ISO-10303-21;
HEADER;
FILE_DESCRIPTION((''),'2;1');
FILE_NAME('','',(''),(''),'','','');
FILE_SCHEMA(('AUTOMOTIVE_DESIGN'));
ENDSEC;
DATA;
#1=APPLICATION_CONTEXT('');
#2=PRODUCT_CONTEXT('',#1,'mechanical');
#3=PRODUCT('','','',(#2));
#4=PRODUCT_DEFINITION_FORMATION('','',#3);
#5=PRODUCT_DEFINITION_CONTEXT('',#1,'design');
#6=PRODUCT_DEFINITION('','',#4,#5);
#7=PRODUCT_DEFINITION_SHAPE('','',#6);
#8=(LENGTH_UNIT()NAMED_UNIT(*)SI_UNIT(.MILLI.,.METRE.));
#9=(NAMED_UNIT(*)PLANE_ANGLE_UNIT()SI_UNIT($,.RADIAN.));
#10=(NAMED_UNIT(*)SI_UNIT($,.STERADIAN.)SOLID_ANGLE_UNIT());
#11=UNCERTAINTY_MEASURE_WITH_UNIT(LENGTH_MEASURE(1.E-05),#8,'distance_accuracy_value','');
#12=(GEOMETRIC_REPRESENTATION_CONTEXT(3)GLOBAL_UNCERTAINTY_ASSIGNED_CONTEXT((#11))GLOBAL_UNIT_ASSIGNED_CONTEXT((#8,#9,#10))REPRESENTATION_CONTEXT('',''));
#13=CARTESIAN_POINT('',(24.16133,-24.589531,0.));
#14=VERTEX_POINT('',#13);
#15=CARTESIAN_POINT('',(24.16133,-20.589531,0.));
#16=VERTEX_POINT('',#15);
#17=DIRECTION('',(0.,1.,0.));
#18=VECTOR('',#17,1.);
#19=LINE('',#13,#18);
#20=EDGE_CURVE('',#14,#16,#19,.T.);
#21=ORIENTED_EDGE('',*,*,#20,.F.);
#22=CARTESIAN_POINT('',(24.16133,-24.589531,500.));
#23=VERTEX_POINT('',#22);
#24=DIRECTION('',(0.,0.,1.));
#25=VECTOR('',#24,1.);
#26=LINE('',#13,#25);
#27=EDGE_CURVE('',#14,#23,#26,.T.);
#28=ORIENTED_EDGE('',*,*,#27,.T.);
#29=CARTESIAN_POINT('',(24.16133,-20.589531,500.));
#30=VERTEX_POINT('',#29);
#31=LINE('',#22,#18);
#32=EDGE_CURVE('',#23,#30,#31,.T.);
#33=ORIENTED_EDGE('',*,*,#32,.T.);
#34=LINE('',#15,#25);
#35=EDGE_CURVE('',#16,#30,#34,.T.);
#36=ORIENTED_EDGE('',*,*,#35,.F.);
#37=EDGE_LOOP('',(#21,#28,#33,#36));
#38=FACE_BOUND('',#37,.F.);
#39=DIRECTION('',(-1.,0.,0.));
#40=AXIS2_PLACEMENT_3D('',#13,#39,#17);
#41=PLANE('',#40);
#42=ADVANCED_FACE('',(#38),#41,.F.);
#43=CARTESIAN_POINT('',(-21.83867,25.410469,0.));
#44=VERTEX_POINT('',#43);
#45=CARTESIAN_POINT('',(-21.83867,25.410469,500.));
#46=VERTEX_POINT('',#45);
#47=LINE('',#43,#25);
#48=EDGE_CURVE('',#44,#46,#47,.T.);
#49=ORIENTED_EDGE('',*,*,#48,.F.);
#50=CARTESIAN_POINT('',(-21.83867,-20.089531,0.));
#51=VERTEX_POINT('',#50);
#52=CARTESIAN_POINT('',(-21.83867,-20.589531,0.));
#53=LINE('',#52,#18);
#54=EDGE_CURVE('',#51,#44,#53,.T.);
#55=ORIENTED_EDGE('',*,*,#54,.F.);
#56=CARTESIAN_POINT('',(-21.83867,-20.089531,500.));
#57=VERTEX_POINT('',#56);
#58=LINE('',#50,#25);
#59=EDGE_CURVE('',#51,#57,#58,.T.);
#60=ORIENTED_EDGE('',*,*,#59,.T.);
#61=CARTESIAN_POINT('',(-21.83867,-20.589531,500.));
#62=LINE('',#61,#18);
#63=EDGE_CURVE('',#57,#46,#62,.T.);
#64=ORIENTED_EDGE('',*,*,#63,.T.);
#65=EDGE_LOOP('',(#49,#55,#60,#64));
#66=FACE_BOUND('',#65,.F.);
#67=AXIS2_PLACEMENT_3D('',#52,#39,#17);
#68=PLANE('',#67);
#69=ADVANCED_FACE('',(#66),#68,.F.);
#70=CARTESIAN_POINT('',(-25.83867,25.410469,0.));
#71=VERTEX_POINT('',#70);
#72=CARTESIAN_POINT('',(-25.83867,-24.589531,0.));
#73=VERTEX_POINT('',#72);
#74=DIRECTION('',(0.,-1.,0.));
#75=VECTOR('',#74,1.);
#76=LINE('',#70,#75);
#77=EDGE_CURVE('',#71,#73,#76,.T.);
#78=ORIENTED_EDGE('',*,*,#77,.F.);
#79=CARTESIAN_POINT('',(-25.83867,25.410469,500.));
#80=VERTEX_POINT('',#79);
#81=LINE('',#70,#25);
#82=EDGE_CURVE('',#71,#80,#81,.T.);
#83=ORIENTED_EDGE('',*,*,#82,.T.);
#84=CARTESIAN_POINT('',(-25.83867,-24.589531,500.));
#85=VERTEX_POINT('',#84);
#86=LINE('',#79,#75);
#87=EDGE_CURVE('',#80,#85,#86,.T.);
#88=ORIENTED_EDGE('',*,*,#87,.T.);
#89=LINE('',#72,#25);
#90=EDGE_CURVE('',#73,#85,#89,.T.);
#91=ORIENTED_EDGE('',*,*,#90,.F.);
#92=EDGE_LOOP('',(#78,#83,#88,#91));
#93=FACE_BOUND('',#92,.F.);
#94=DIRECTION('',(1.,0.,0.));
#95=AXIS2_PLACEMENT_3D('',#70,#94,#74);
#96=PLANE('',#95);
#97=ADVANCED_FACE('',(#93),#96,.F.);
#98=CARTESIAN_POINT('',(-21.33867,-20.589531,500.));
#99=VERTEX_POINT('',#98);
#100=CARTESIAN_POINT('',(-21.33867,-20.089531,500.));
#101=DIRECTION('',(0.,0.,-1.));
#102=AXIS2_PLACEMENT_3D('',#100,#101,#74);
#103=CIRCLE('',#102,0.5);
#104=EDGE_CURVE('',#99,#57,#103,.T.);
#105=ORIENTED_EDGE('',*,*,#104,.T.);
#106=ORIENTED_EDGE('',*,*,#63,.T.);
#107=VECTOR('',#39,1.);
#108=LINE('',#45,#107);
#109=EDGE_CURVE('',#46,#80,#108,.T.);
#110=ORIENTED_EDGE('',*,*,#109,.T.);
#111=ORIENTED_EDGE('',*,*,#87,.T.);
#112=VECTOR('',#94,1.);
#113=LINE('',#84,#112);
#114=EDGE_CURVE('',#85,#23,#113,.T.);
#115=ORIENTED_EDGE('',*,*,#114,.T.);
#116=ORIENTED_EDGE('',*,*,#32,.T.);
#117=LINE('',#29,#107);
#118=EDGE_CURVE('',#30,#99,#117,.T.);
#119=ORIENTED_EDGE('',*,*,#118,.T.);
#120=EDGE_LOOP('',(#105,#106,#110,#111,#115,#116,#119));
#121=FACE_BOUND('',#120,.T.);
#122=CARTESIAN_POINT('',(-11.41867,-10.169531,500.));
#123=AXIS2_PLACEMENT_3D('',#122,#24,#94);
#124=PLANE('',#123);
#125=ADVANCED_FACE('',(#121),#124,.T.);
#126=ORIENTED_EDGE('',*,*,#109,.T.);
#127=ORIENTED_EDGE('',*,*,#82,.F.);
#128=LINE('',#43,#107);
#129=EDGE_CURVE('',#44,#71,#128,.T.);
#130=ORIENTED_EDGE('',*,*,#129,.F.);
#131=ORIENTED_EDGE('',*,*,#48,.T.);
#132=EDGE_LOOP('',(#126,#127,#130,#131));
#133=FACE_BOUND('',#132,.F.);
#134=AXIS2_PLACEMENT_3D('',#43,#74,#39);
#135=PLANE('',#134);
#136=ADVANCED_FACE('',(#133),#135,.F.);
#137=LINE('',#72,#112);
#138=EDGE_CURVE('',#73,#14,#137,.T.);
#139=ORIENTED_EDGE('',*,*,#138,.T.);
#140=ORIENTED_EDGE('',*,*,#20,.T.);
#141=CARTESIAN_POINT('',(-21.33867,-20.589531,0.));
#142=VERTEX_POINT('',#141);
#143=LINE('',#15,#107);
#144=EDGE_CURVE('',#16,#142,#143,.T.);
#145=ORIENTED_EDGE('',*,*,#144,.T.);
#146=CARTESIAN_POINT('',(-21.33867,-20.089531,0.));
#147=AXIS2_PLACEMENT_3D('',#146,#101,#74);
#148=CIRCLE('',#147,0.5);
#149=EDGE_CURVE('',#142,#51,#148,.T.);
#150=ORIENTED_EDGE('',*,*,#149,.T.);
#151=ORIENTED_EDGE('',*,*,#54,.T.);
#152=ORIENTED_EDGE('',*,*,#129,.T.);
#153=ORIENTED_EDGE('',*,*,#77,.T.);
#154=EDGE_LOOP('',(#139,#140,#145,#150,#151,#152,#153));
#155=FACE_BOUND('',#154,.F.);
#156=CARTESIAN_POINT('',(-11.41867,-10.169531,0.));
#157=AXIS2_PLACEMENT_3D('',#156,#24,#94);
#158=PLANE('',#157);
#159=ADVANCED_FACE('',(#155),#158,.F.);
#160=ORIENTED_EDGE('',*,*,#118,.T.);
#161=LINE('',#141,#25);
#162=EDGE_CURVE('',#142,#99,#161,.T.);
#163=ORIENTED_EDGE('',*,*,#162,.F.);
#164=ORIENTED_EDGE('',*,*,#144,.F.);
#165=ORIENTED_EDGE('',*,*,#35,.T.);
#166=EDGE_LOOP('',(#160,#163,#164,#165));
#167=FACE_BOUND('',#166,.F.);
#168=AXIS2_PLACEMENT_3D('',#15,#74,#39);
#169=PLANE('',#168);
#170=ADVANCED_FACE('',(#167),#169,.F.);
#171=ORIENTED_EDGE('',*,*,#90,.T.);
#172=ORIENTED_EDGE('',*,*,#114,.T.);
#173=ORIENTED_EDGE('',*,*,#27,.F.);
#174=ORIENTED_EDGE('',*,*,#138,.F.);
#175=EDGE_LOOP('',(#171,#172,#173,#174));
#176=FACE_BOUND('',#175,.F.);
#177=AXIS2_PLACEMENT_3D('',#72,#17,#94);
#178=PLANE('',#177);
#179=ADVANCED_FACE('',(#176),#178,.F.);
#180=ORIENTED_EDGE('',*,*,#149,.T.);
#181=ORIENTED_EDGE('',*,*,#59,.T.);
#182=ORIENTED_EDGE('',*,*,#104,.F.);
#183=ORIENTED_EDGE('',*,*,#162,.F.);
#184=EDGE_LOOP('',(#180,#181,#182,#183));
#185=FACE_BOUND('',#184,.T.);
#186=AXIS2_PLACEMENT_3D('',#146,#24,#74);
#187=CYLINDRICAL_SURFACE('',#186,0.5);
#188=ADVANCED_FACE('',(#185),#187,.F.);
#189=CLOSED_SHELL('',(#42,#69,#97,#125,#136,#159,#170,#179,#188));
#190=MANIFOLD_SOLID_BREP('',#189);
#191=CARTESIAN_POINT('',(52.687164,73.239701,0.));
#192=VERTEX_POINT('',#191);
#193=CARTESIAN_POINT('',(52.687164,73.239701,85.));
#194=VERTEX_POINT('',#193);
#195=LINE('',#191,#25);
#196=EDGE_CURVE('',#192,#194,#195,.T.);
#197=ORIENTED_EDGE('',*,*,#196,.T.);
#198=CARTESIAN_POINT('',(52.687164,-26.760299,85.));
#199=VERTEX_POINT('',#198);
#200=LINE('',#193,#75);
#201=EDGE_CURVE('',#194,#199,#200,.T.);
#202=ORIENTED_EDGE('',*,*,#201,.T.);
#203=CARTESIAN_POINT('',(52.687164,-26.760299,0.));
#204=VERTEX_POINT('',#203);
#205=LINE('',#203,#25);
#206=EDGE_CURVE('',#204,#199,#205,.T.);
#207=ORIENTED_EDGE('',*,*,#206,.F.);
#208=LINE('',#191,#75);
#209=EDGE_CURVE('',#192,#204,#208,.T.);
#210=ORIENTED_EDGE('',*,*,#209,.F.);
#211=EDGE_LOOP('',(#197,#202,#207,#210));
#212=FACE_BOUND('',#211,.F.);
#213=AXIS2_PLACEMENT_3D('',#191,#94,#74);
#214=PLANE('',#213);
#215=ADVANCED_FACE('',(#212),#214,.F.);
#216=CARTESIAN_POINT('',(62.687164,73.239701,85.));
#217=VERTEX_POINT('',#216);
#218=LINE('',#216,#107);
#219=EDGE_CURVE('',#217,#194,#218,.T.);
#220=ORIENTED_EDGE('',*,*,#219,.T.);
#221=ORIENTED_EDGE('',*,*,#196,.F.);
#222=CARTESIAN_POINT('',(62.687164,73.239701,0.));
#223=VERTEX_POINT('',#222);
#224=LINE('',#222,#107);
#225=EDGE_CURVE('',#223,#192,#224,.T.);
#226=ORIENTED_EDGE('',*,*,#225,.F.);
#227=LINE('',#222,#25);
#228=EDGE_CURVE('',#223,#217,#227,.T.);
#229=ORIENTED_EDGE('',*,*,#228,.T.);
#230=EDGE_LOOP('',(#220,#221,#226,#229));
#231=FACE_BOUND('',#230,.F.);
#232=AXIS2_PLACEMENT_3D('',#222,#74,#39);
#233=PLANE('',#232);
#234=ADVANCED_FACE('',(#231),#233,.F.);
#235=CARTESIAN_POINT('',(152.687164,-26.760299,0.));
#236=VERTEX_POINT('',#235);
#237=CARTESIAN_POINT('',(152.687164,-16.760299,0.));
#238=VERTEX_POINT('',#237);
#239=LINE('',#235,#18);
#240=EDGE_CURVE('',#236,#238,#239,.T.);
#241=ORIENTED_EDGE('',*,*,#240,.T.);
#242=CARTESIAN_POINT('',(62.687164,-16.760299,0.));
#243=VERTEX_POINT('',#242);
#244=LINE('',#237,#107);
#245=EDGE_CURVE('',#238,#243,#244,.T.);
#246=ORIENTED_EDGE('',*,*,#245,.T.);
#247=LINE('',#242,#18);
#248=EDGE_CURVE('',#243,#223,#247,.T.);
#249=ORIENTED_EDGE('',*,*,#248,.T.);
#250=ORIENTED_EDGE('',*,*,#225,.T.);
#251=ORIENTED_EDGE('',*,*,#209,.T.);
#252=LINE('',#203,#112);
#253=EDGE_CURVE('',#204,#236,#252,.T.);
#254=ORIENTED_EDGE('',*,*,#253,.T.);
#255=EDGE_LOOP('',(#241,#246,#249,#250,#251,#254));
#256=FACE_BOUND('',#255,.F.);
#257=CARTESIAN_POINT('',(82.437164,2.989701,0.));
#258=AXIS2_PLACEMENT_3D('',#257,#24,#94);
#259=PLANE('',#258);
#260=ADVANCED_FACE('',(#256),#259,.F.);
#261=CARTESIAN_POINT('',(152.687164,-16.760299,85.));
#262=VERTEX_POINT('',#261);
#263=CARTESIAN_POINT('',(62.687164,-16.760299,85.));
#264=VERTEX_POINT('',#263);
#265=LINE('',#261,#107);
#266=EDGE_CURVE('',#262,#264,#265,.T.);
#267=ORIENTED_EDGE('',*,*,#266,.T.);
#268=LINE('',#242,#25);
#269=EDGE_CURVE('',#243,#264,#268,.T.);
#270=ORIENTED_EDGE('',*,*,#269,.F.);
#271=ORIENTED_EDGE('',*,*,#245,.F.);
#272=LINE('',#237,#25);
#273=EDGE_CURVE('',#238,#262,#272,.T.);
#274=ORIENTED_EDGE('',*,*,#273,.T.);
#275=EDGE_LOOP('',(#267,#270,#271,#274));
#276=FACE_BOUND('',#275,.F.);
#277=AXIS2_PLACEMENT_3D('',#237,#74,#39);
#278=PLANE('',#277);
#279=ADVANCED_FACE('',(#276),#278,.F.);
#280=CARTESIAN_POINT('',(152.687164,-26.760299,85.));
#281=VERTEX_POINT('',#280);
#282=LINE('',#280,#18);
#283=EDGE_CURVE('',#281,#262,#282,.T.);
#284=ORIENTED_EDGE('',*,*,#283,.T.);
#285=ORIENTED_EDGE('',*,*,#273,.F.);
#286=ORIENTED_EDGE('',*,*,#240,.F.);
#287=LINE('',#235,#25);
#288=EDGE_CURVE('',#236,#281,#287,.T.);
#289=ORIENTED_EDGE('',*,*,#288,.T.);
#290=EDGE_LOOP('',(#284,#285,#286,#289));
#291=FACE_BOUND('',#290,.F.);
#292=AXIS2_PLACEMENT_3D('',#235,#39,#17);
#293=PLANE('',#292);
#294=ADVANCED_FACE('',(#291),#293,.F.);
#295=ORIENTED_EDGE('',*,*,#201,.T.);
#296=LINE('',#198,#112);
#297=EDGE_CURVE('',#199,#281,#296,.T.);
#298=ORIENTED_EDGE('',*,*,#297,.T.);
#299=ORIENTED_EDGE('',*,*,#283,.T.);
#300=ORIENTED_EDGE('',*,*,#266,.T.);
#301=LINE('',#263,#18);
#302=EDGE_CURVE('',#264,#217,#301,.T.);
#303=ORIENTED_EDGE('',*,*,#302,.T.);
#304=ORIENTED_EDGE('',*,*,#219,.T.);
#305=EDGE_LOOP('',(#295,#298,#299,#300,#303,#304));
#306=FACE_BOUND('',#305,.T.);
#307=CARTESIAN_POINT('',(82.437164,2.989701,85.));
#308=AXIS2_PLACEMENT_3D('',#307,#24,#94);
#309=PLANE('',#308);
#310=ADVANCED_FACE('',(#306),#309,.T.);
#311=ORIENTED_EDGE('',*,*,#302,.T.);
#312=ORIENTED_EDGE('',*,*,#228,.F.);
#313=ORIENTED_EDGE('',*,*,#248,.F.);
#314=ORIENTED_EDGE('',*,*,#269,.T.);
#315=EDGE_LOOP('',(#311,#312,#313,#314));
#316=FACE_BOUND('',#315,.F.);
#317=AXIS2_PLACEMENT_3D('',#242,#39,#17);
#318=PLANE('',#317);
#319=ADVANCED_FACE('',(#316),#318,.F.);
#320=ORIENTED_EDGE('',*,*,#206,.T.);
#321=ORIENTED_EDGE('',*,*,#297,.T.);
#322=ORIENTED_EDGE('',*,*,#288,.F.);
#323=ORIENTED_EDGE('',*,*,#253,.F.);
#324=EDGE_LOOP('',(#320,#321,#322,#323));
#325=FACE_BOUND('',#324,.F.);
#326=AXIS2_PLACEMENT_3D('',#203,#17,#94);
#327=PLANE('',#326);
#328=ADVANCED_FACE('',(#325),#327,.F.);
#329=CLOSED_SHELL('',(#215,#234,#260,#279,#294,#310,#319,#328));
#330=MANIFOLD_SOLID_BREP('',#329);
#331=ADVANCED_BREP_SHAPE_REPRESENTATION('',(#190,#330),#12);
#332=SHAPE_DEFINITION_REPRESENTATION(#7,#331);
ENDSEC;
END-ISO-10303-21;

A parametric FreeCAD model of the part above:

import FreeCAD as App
import Part
import Sketcher
from FreeCAD import Vector


def edges_at(feature, points):
    """Names of the edges that pass closest to the given points."""
    edges = feature.Shape.Edges
    near = lambda p: min(range(len(edges)), key=lambda i: edges[i].distToShape(Part.Vertex(*p))[0])
    return sorted({f"Edge{near(p) + 1}" for p in points})

doc = App.newDocument("Part")
body = doc.addObject("PartDesign::Body", "Body")

# Sketch on XY plane
sketch1 = body.newObject("Sketcher::SketchObject", "Sketch")
sketch1.AttachmentSupport = (doc.getObject("XY_Plane"), [""])
sketch1.MapMode = "FlatFace"
sketch1.addGeometry([
    Part.LineSegment(Vector(-21.8, 25.4, 0), Vector(-25.8, 25.4, 0)),  # 0
    Part.LineSegment(Vector(-25.8, 25.4, 0), Vector(-25.8, -24.6, 0)),  # 1
    Part.LineSegment(Vector(-25.8, -24.6, 0), Vector(24.2, -24.6, 0)),  # 2
    Part.LineSegment(Vector(24.2, -24.6, 0), Vector(24.2, -20.6, 0)),  # 3
    Part.LineSegment(Vector(24.2, -20.6, 0), Vector(-21.8, -20.6, 0)),  # 4
    Part.LineSegment(Vector(-21.8, -20.6, 0), Vector(-21.8, 25.4, 0)),  # 5
], False)
sketch1.addConstraint([
    Sketcher.Constraint("Coincident", 0, 2, 1, 1),
    Sketcher.Constraint("Coincident", 1, 2, 2, 1),
    Sketcher.Constraint("Coincident", 2, 2, 3, 1),
    Sketcher.Constraint("Coincident", 3, 2, 4, 1),
    Sketcher.Constraint("Coincident", 4, 2, 5, 1),
    Sketcher.Constraint("Coincident", 5, 2, 0, 1),
    Sketcher.Constraint("Horizontal", 0),
    Sketcher.Constraint("Vertical", 1),
    Sketcher.Constraint("Horizontal", 2),
    Sketcher.Constraint("Vertical", 3),
    Sketcher.Constraint("Horizontal", 4),
    Sketcher.Constraint("Vertical", 5),
    Sketcher.Constraint("Equal", 2, 1),
    Sketcher.Constraint("Equal", 0, 3),
    Sketcher.Constraint("DistanceX", 0, 2, 0, 1, 4.0),
    Sketcher.Constraint("DistanceX", 2, 1, 2, 2, 50.0),
    Sketcher.Constraint("DistanceX", 0, 2, -1, 1, 25.83867),
    Sketcher.Constraint("DistanceY", -1, 1, 0, 2, 25.410469),
])
pad1 = body.newObject("PartDesign::Pad", "Pad")
pad1.Profile = sketch1
pad1.Length = 500
doc.recompute()

fillet = body.newObject("PartDesign::Fillet", "Fillet")
fillet.Base = (pad1, edges_at(pad1, [(-21.839, -20.59, 250)]))
fillet.Radius = 0.5
body2 = doc.addObject("PartDesign::Body", "Body001")

# Sketch on XY plane
sketch2 = body2.newObject("Sketcher::SketchObject", "Sketch001")
sketch2.AttachmentSupport = (doc.getObject("XY_Plane001"), [""])
sketch2.MapMode = "FlatFace"
sketch2.addGeometry([
    Part.LineSegment(Vector(63, 73, 0), Vector(53, 73, 0)),  # 0
    Part.LineSegment(Vector(53, 73, 0), Vector(53, -27, 0)),  # 1
    Part.LineSegment(Vector(53, -27, 0), Vector(153, -27, 0)),  # 2
    Part.LineSegment(Vector(153, -27, 0), Vector(153, -17, 0)),  # 3
    Part.LineSegment(Vector(153, -17, 0), Vector(63, -17, 0)),  # 4
    Part.LineSegment(Vector(63, -17, 0), Vector(63, 73, 0)),  # 5
], False)
sketch2.addConstraint([
    Sketcher.Constraint("Coincident", 0, 2, 1, 1),
    Sketcher.Constraint("Coincident", 1, 2, 2, 1),
    Sketcher.Constraint("Coincident", 2, 2, 3, 1),
    Sketcher.Constraint("Coincident", 3, 2, 4, 1),
    Sketcher.Constraint("Coincident", 4, 2, 5, 1),
    Sketcher.Constraint("Coincident", 5, 2, 0, 1),
    Sketcher.Constraint("Horizontal", 0),
    Sketcher.Constraint("Vertical", 1),
    Sketcher.Constraint("Horizontal", 2),
    Sketcher.Constraint("Vertical", 3),
    Sketcher.Constraint("Horizontal", 4),
    Sketcher.Constraint("Vertical", 5),
    Sketcher.Constraint("Equal", 2, 1),
    Sketcher.Constraint("Equal", 0, 3),
    Sketcher.Constraint("DistanceX", 0, 2, 0, 1, 10.0),
    Sketcher.Constraint("DistanceX", 2, 1, 2, 2, 100.0),
    Sketcher.Constraint("DistanceY", -1, 1, 0, 2, 73.239701),
    Sketcher.Constraint("DistanceX", -1, 1, 0, 2, 52.687164),
])
pad2 = body2.newObject("PartDesign::Pad", "Pad001")
pad2.Profile = sketch2
pad2.Length = 85

doc.recompute()
